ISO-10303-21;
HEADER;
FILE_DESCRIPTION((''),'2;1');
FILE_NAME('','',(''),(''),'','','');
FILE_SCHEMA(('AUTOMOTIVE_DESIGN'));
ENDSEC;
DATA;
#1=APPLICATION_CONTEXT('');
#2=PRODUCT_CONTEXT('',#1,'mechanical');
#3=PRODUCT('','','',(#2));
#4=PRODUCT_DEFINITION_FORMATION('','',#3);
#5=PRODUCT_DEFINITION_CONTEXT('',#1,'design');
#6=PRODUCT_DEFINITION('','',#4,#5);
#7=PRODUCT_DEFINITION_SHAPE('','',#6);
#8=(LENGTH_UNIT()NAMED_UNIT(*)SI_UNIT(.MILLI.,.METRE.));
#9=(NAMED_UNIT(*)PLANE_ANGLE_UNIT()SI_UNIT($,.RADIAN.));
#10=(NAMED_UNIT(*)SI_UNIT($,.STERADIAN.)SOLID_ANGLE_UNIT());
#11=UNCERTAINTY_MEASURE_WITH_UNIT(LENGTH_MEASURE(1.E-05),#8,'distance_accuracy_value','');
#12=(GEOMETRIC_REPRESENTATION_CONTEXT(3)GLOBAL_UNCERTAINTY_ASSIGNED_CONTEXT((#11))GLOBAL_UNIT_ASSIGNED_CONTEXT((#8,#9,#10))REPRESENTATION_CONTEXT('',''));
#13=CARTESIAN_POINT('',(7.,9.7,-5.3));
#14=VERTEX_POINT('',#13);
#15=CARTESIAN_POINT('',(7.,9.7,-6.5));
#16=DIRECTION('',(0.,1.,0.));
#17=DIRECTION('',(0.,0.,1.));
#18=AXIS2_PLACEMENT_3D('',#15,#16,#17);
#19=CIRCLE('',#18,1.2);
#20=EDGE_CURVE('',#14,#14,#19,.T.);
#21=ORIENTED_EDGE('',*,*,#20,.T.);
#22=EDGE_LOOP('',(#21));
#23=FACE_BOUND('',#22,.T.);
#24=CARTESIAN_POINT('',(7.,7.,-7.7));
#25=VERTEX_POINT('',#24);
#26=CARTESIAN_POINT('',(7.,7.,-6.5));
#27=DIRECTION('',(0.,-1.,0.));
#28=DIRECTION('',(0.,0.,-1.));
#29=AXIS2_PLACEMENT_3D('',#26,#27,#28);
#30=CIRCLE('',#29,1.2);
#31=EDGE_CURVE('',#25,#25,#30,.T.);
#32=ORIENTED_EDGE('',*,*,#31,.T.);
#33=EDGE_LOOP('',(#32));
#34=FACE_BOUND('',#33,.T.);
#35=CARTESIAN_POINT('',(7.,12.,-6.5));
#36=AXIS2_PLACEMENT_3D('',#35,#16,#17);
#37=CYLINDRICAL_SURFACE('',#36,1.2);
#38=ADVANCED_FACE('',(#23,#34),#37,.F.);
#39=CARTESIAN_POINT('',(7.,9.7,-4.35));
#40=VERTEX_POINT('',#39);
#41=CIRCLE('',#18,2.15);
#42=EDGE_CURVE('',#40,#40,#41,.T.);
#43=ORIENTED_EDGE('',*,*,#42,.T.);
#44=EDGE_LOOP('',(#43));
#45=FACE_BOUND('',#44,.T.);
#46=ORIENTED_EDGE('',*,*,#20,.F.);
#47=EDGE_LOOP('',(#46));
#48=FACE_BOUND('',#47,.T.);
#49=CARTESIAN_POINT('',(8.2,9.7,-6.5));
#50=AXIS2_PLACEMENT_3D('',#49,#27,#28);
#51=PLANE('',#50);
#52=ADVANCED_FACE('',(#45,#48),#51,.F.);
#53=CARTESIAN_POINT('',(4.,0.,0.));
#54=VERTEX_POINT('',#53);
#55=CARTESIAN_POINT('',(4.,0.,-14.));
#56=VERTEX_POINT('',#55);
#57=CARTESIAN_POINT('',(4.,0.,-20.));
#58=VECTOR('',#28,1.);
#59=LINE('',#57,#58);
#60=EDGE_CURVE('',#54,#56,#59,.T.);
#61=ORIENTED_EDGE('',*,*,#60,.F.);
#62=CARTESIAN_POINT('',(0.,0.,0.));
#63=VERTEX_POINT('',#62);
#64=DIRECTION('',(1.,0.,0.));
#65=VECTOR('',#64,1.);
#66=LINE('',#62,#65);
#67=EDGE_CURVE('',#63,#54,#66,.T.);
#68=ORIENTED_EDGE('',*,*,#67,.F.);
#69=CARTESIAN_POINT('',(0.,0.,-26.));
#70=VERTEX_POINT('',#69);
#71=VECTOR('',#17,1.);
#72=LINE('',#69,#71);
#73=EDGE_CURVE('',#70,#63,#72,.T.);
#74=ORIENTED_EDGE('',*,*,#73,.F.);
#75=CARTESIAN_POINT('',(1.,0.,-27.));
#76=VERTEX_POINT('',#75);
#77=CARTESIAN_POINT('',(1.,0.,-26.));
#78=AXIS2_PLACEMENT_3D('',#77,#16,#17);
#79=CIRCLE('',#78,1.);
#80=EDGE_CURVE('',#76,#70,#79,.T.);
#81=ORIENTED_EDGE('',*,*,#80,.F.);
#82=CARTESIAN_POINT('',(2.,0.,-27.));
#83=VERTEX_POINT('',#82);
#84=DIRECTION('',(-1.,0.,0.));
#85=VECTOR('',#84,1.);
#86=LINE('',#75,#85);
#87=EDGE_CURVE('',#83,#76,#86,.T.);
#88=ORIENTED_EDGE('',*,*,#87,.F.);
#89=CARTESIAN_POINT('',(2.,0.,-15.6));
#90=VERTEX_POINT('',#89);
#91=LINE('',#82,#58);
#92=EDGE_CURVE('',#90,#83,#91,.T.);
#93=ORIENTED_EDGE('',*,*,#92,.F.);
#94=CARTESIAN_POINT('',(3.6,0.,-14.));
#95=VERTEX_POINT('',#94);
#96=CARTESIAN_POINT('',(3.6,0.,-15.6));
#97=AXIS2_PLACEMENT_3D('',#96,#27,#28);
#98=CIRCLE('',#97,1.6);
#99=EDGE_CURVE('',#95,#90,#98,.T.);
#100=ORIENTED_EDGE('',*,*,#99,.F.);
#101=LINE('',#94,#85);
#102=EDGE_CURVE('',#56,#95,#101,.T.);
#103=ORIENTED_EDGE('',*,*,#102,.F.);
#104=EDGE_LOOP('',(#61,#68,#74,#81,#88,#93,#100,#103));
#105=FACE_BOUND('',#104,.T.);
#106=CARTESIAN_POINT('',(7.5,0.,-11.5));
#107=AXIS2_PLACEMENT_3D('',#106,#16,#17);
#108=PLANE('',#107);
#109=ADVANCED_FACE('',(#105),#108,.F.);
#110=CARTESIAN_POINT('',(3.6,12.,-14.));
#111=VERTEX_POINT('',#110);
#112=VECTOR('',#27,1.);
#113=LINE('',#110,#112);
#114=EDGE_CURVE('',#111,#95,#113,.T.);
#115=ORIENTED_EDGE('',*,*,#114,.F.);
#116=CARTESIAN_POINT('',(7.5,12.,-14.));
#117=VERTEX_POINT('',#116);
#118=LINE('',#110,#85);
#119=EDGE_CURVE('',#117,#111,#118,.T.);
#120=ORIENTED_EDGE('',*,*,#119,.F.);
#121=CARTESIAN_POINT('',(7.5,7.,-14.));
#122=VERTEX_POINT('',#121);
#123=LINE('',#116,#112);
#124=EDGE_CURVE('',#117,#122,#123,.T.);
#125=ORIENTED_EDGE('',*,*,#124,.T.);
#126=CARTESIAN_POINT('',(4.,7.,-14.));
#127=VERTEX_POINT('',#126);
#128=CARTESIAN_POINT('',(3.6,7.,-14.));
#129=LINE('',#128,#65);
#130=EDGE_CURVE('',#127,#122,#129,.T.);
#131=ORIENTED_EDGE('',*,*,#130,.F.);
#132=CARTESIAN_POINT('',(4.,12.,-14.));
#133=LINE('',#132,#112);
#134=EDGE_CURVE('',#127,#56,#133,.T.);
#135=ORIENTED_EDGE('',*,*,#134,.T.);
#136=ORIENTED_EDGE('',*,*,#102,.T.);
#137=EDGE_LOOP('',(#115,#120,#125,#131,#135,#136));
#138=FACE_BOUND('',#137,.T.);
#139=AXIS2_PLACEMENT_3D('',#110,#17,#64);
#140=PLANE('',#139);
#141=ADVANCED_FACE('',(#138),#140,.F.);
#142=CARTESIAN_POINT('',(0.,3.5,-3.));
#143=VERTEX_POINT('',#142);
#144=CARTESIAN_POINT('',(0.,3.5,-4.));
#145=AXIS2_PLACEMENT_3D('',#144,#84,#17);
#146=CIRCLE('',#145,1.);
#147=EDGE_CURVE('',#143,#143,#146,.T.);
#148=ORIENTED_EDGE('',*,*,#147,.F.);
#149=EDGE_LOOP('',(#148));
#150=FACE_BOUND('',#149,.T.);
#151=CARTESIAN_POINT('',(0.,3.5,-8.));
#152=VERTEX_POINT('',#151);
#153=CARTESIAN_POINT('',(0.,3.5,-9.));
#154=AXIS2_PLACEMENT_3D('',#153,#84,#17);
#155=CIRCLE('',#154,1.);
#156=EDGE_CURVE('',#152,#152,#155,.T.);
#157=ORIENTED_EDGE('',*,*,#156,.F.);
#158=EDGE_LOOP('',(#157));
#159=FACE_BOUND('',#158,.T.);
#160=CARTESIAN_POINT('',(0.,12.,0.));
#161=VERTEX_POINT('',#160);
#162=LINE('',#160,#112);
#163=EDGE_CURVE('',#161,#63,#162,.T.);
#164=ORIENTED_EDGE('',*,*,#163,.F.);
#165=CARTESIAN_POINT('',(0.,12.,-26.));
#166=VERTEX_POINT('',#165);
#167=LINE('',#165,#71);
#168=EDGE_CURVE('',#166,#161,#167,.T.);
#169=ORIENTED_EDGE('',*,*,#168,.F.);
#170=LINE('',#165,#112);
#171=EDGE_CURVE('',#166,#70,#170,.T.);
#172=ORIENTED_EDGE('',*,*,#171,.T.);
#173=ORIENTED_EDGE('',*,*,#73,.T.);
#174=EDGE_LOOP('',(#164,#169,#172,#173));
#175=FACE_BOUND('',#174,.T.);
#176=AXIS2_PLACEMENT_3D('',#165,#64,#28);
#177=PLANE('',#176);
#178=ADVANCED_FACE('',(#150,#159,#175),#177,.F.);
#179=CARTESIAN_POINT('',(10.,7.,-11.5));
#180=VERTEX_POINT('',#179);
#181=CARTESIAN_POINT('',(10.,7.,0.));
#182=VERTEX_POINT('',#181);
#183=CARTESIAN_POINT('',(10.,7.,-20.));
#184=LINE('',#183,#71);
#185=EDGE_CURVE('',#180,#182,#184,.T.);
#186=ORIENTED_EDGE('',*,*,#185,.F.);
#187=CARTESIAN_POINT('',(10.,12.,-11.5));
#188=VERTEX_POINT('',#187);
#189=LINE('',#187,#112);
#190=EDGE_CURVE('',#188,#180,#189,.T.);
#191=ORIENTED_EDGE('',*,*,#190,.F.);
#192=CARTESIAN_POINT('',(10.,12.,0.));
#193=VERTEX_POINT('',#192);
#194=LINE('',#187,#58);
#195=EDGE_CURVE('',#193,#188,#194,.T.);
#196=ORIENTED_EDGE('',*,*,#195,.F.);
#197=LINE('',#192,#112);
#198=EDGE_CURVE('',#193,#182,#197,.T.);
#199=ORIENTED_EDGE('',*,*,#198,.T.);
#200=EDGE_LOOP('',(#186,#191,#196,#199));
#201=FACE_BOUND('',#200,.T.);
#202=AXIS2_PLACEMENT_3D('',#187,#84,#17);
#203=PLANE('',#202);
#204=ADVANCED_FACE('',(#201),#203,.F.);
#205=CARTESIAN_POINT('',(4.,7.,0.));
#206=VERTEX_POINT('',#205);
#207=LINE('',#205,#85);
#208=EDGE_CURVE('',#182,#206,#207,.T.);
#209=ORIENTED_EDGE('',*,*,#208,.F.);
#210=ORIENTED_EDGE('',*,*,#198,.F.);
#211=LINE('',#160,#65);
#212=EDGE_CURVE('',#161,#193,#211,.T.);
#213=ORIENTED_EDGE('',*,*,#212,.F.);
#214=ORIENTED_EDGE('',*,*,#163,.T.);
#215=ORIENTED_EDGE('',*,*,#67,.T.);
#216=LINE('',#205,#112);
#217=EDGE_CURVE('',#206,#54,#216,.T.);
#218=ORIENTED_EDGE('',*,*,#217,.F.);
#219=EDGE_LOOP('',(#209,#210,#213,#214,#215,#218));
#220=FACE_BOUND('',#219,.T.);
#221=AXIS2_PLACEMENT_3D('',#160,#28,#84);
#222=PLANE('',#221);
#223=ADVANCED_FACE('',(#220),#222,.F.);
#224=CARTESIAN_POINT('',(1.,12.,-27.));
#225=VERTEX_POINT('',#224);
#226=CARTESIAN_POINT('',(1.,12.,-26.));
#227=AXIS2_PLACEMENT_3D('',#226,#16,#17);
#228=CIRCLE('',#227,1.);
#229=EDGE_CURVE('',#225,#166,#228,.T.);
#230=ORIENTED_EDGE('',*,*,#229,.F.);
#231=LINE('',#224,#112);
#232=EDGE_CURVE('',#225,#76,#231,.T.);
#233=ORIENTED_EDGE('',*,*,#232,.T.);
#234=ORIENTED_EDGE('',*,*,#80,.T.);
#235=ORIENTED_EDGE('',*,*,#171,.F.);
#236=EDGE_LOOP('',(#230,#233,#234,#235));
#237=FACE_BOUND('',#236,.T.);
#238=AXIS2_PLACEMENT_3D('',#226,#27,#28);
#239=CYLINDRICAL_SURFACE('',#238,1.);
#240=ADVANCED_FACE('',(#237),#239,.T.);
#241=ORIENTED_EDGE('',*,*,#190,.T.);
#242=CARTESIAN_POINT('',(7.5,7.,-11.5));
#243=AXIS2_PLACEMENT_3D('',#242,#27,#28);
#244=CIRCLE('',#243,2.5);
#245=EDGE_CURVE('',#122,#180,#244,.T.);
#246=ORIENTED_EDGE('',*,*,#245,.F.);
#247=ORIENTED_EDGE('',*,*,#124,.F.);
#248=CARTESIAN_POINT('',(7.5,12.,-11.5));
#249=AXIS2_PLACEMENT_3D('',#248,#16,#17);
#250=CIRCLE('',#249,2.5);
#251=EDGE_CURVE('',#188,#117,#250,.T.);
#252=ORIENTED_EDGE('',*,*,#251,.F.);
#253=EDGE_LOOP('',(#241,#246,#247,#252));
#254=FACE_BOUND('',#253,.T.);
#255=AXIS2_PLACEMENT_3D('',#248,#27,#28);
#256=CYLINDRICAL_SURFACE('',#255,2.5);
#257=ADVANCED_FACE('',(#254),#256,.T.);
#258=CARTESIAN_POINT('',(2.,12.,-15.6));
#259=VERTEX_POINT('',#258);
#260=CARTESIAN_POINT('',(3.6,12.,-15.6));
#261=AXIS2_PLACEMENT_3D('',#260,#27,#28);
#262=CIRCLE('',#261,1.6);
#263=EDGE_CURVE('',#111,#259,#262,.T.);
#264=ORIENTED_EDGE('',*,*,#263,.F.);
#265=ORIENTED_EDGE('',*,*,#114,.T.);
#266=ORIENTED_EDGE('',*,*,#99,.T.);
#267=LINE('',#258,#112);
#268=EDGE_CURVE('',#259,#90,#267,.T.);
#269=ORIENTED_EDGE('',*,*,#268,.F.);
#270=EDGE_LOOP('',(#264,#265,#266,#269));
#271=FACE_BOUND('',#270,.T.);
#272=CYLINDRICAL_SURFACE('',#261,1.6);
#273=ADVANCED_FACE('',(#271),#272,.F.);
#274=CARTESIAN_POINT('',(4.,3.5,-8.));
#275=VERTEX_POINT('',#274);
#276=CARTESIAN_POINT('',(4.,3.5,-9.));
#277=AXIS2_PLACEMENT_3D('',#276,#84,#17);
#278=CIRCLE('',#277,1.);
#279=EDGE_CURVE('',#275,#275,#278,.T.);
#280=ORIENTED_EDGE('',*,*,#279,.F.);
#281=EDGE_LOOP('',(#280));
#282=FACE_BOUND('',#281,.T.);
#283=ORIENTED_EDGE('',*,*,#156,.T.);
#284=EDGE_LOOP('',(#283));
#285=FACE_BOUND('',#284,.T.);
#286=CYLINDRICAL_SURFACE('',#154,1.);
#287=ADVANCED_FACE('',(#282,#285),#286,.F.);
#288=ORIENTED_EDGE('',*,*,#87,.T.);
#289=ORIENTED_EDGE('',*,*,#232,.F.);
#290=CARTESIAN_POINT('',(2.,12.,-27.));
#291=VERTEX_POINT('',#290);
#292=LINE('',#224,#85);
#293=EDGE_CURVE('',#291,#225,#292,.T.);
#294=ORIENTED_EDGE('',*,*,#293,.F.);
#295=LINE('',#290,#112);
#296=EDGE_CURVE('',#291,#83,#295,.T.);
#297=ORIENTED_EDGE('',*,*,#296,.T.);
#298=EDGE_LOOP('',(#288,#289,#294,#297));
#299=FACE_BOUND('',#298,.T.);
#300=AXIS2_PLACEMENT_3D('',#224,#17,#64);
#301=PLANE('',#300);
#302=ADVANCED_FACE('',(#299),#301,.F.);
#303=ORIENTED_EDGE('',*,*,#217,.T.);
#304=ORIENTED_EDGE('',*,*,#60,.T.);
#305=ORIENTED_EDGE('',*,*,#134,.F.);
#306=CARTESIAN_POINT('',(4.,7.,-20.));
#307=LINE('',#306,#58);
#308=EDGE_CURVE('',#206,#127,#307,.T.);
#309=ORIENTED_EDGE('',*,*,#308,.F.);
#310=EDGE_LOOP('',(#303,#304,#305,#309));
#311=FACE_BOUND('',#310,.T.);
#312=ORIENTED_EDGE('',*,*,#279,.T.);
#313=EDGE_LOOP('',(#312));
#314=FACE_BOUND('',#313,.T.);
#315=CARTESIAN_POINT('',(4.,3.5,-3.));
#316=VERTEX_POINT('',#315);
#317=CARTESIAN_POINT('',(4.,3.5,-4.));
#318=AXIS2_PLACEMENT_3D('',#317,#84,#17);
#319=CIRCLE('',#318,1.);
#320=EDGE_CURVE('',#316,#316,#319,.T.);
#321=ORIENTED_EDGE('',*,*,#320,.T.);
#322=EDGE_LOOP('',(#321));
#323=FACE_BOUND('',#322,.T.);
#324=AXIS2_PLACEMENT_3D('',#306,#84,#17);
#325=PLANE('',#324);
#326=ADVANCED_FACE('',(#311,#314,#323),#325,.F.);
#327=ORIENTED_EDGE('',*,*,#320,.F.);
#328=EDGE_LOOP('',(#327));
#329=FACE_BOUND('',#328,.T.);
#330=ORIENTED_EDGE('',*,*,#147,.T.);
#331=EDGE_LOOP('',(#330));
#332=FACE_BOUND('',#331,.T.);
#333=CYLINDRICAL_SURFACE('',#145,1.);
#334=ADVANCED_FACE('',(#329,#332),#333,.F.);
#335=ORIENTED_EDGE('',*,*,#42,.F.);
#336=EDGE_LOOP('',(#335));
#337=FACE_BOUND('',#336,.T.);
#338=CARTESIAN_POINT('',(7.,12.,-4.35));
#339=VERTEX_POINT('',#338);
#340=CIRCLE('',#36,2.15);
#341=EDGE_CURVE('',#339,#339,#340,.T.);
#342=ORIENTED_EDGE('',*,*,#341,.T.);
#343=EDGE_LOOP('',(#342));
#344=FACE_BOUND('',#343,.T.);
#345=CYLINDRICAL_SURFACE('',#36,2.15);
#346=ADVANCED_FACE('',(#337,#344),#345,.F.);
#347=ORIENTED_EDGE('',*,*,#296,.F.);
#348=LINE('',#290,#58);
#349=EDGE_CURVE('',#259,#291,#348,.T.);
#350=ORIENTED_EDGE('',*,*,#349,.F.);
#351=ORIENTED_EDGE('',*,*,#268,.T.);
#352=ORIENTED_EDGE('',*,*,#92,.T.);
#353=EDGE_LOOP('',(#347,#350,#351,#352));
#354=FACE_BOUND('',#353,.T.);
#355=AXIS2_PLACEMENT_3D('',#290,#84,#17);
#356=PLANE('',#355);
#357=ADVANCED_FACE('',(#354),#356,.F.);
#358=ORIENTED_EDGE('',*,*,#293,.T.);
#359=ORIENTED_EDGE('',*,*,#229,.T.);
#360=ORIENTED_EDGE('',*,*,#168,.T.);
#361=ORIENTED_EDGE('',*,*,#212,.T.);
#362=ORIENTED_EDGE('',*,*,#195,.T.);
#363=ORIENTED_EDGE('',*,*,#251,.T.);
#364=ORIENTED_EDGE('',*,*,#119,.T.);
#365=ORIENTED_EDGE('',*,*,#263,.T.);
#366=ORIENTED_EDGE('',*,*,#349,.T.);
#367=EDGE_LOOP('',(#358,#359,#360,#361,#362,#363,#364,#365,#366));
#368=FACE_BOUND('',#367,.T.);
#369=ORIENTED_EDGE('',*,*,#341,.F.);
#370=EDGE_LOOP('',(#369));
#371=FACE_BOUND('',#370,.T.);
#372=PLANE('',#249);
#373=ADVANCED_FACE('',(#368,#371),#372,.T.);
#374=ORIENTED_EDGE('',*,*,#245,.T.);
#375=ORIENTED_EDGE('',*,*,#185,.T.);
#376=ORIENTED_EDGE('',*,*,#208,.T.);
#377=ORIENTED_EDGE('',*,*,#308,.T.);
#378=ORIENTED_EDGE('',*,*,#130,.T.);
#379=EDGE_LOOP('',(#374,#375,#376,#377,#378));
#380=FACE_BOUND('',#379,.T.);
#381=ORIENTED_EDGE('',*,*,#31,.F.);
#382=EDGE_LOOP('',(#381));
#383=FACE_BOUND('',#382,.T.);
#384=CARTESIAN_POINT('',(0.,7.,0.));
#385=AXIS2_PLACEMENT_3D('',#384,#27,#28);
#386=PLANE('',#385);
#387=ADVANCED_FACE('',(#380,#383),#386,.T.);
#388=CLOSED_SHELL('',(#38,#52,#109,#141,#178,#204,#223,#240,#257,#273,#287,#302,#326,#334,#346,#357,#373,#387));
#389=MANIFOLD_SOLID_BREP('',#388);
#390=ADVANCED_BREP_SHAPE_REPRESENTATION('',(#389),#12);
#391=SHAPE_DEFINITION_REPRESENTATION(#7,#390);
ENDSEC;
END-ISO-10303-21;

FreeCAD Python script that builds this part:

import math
import FreeCAD as App
import Part
import Sketcher

V = App.Vector
Q = App.Units.Quantity

doc = App.newDocument("Part")
params = doc.addObject("Spreadsheet::Sheet", "Params")
for row, (alias, value) in enumerate([
    ("sketch1_radius", "1 mm"),
    ("sketch1_radius2", "1.6 mm"),
    ("sketch1_radius3", "2.5 mm"),
    ("sketch1_width", "1 mm"),
    ("sketch1_width2", "10 mm"),
    ("pad1_length", "12 mm"),
    ("sketch2_width", "6 mm"),
    ("sketch2_height", "20 mm"),
    ("pocket1_length", "7 mm"),
    ("sketch3_diameter", "2 mm"),
    ("hole_diameter", "2 mm"),
    ("sketch4_diameter", "2.4 mm"),
    ("hole2_diameter", "2.4 mm"),
    ("hole2_cbore_diameter", "4.3 mm"),
    ("hole2_cbore_depth", "2.3 mm"),
], start=1):
    params.set(f"A{row}", alias)
    params.set(f"B{row}", "=" + value)
    params.setAlias(f"B{row}", alias)

body = doc.addObject("PartDesign::Body", "Body")

# Sketch on XZ plane
sketch1 = doc.addObject("Sketcher::SketchObject", "Sketch")
body.addObject(sketch1)
sketch1.AttachmentSupport = (doc.XZ_Plane, [""])
sketch1.MapMode = "FlatFace"
sketch1.addGeometry([
    Part.LineSegment(V(7.5, -14, 0), V(3.6, -14, 0)),  # 0
    Part.ArcOfCircle(Part.Circle(V(3.6, -15.6, 0), V(0, 0, 1), 1.6), math.radians(90), math.radians(180)),  # 1
    Part.LineSegment(V(2, -15.6, 0), V(2, -27, 0)),  # 2
    Part.LineSegment(V(2, -27, 0), V(1, -27, 0)),  # 3
    Part.ArcOfCircle(Part.Circle(V(1, -26, 0), V(0, 0, 1), 1), math.radians(-180), math.radians(-90)),  # 4
    Part.LineSegment(V(0, -26, 0), V(0, 0, 0)),  # 5
    Part.LineSegment(V(0, 0, 0), V(10, 0, 0)),  # 6
    Part.LineSegment(V(10, 0, 0), V(10, -11.5, 0)),  # 7
    Part.ArcOfCircle(Part.Circle(V(7.5, -11.5, 0), V(0, 0, 1), 2.5), math.radians(-90), math.radians(0)),  # 8
], False)
sketch1.addConstraint([
    Sketcher.Constraint("Tangent", 0, 2, 1, 1),
    Sketcher.Constraint("Tangent", 1, 2, 2, 1),
    Sketcher.Constraint("Coincident", 2, 2, 3, 1),
    Sketcher.Constraint("Tangent", 3, 2, 4, 2),
    Sketcher.Constraint("Tangent", 4, 1, 5, 1),
    Sketcher.Constraint("Coincident", 5, 2, 6, 1),
    Sketcher.Constraint("Coincident", 6, 2, 7, 1),
    Sketcher.Constraint("Tangent", 7, 2, 8, 2),
    Sketcher.Constraint("Tangent", 8, 1, 0, 1),
    Sketcher.Constraint("Horizontal", 0),
    Sketcher.Constraint("Vertical", 2),
    Sketcher.Constraint("Horizontal", 3),
    Sketcher.Constraint("Vertical", 5),
    Sketcher.Constraint("Horizontal", 6),
    Sketcher.Constraint("Vertical", 7),
    Sketcher.Constraint("Coincident", 5, 2, -1, 1),
    Sketcher.Constraint("Radius", 4, Q("1 mm")),
    Sketcher.Constraint("Radius", 1, Q("1.6 mm")),
    Sketcher.Constraint("Radius", 8, Q("2.5 mm")),
    Sketcher.Constraint("DistanceX", 3, 2, 3, 1, Q("1 mm")),
    Sketcher.Constraint("DistanceX", 6, 1, 6, 2, Q("10 mm")),
    Sketcher.Constraint("DistanceY", 5, 1, 5, 2, Q("26 mm")),
    Sketcher.Constraint("DistanceY", 2, 2, 2, 1, Q("11.4 mm")),
])
sketch1.setExpression("Constraints[16]", "Params.sketch1_radius")
sketch1.setExpression("Constraints[17]", "Params.sketch1_radius2")
sketch1.setExpression("Constraints[18]", "Params.sketch1_radius3")
sketch1.setExpression("Constraints[19]", "Params.sketch1_width")
sketch1.setExpression("Constraints[20]", "Params.sketch1_width2")
pad1 = doc.addObject("PartDesign::Pad", "Pad")
body.addObject(pad1)
pad1.Profile = sketch1
pad1.setExpression("Length", "Params.pad1_length")
pad1.Reversed = True

# Sketch on XZ plane
sketch2 = doc.addObject("Sketcher::SketchObject", "Sketch001")
body.addObject(sketch2)
sketch2.AttachmentSupport = (doc.XZ_Plane, [""])
sketch2.MapMode = "FlatFace"
sketch2.addGeometry([
    Part.LineSegment(V(4, 0, 0), V(4, -20, 0)),
    Part.LineSegment(V(4, -20, 0), V(10, -20, 0)),
    Part.LineSegment(V(10, -20, 0), V(10, 0, 0)),
    Part.LineSegment(V(10, 0, 0), V(4, 0, 0)),
], False)
sketch2.addConstraint([
    Sketcher.Constraint("Coincident", 0, 2, 1, 1),
    Sketcher.Constraint("Coincident", 1, 2, 2, 1),
    Sketcher.Constraint("Coincident", 2, 2, 3, 1),
    Sketcher.Constraint("Coincident", 3, 2, 0, 1),
    Sketcher.Constraint("Vertical", 0),
    Sketcher.Constraint("Horizontal", 1),
    Sketcher.Constraint("Vertical", 2),
    Sketcher.Constraint("Horizontal", 3),
    Sketcher.Constraint("PointOnObject", 2, 2, -1),
    Sketcher.Constraint("DistanceX", 1, 1, 1, 2, Q("6 mm")),
    Sketcher.Constraint("DistanceY", 0, 2, 0, 1, Q("20 mm")),
    Sketcher.Constraint("DistanceX", -1, 1, 0, 2, Q("4 mm")),
])
sketch2.setExpression("Constraints[9]", "Params.sketch2_width")
sketch2.setExpression("Constraints[10]", "Params.sketch2_height")
pocket1 = doc.addObject("PartDesign::Pocket", "Pocket")
body.addObject(pocket1)
pocket1.Profile = sketch2
pocket1.setExpression("Length", "Params.pocket1_length")

# Sketch on YZ plane
sketch3 = doc.addObject("Sketcher::SketchObject", "Sketch002")
body.addObject(sketch3)
sketch3.AttachmentSupport = (doc.YZ_Plane, [""])
sketch3.MapMode = "FlatFace"
sketch3.addGeometry([
    Part.Circle(V(3.5, -4, 0), V(0, 0, 1), 1),
    Part.Circle(V(3.5, -9, 0), V(0, 0, 1), 1),
], False)
sketch3.addConstraint([
    Sketcher.Constraint("Equal", 0, 1),
    Sketcher.Constraint("Vertical", 0, 3, 1, 3),
    Sketcher.Constraint("Diameter", 0, Q("2 mm")),
    Sketcher.Constraint("DistanceY", 0, 3, -1, 1, Q("4 mm")),
    Sketcher.Constraint("DistanceY", 1, 3, -1, 1, Q("9 mm")),
    Sketcher.Constraint("DistanceX", -1, 1, 0, 3, Q("3.5 mm")),
])
sketch3.setExpression("Constraints[2]", "Params.sketch3_diameter")
doc.recompute()
hole = doc.addObject("PartDesign::Hole", "Hole")
body.addObject(hole)
hole.Profile = sketch3
hole.ThreadType = "None"
hole.setExpression("Diameter", "Params.hole_diameter")
hole.DepthType = "ThroughAll"
hole.Reversed = True

# Sketch on XZ plane
sketch4 = doc.addObject("Sketcher::SketchObject", "Sketch003")
body.addObject(sketch4)
sketch4.AttachmentSupport = (doc.XZ_Plane, [""])
sketch4.MapMode = "FlatFace"
sketch4.AttachmentOffset = App.Placement(V(0, 0, -12), App.Rotation())
sketch4.addGeometry(Part.Circle(V(7, -6.5, 0), V(0, 0, 1), 1.2), False)
sketch4.addConstraint([
    Sketcher.Constraint("Diameter", 0, Q("2.4 mm")),
    Sketcher.Constraint("DistanceX", -1, 1, 0, 3, Q("7 mm")),
    Sketcher.Constraint("DistanceY", 0, 3, -1, 1, Q("6.5 mm")),
])
sketch4.setExpression("Constraints[0]", "Params.sketch4_diameter")
doc.recompute()
hole2 = doc.addObject("PartDesign::Hole", "Hole001")
body.addObject(hole2)
hole2.Profile = sketch4
hole2.ThreadType = "None"
hole2.setExpression("Diameter", "Params.hole2_diameter")
hole2.DepthType = "ThroughAll"
hole2.HoleCutType = "Counterbore"
hole2.setExpression("HoleCutDiameter", "Params.hole2_cbore_diameter")
hole2.setExpression("HoleCutDepth", "Params.hole2_cbore_depth")
hole2.Reversed = True

doc.recompute()
